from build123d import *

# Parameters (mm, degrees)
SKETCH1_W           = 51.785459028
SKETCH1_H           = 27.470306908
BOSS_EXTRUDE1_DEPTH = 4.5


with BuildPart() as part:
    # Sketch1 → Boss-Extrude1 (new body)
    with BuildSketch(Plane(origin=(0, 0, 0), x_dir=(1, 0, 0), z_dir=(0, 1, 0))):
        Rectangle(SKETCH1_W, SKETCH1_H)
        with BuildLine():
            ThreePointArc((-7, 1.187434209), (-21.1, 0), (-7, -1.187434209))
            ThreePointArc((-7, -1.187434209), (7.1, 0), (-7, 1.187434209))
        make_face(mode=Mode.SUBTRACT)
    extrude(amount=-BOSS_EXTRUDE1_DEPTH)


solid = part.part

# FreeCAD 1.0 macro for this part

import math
import FreeCAD as App
import Part
import Sketcher
from FreeCAD import Vector
Q = App.Units.Quantity


def add_polygon(sketch, points):
    """Adds a closed chain of lines whose ends are joined by coincident constraints."""
    first, n = sketch.GeometryCount, len(points)
    for a, b in zip(points, points[1:] + points[:1]):
        sketch.addGeometry(Part.LineSegment(App.Vector(*a, 0), App.Vector(*b, 0)), False)
    for i in range(n):
        sketch.addConstraint(Sketcher.Constraint("Coincident", first + i, 2, first + (i + 1) % n, 1))

doc = App.newDocument("Part")
body = doc.addObject("PartDesign::Body", "Body")

sketch1 = body.newObject("Sketcher::SketchObject", "Sketch")
sketch1.AttachmentSupport = (doc.getObject("XZ_Plane"), [""])
sketch1.MapMode = "FlatFace"
add_polygon(sketch1, [(-25.9, -13.7), (-25.9, 13.7), (25.9, 13.7), (25.9, -13.7)])
sketch1.addGeometry(Part.ArcOfCircle(Part.Circle(Vector(-14, 0, 0), Vector(0, 0, 1), 7.1), math.radians(10), math.radians(350)), False)
sketch1.addGeometry(Part.ArcOfCircle(Part.Circle(Vector(0, 0, 0), Vector(0, 0, 1), 7.1), math.radians(-170), math.radians(170)), False)
sketch1.addConstraint([
    Sketcher.Constraint("Coincident", 4, 1, 5, 2),
    Sketcher.Constraint("Coincident", 5, 1, 4, 2),
    Sketcher.Constraint("Vertical", 0),
    Sketcher.Constraint("Horizontal", 1),
    Sketcher.Constraint("Vertical", 2),
    Sketcher.Constraint("Horizontal", 3),
    Sketcher.Constraint("Coincident", 5, 3, -1, 1),
    Sketcher.Constraint("Equal", 4, 5),
    Sketcher.Constraint("Symmetric", 0, 2, 2, 2, -1, 1),
    Sketcher.Constraint("PointOnObject", 4, 3, -1),
    Sketcher.Constraint("Radius", 4, Q("7.1 mm")),
    Sketcher.Constraint("DistanceX", 4, 3, -1, 1, Q("14 mm")),
    Sketcher.Constraint("DistanceX", 1, 1, 1, 2, Q("51.785459 mm")),
    Sketcher.Constraint("DistanceY", 0, 1, 0, 2, Q("27.470307 mm")),
])
pad1 = body.newObject("PartDesign::Pad", "Pad")
pad1.Profile = sketch1
pad1.Length = 4.5

doc.recompute()
